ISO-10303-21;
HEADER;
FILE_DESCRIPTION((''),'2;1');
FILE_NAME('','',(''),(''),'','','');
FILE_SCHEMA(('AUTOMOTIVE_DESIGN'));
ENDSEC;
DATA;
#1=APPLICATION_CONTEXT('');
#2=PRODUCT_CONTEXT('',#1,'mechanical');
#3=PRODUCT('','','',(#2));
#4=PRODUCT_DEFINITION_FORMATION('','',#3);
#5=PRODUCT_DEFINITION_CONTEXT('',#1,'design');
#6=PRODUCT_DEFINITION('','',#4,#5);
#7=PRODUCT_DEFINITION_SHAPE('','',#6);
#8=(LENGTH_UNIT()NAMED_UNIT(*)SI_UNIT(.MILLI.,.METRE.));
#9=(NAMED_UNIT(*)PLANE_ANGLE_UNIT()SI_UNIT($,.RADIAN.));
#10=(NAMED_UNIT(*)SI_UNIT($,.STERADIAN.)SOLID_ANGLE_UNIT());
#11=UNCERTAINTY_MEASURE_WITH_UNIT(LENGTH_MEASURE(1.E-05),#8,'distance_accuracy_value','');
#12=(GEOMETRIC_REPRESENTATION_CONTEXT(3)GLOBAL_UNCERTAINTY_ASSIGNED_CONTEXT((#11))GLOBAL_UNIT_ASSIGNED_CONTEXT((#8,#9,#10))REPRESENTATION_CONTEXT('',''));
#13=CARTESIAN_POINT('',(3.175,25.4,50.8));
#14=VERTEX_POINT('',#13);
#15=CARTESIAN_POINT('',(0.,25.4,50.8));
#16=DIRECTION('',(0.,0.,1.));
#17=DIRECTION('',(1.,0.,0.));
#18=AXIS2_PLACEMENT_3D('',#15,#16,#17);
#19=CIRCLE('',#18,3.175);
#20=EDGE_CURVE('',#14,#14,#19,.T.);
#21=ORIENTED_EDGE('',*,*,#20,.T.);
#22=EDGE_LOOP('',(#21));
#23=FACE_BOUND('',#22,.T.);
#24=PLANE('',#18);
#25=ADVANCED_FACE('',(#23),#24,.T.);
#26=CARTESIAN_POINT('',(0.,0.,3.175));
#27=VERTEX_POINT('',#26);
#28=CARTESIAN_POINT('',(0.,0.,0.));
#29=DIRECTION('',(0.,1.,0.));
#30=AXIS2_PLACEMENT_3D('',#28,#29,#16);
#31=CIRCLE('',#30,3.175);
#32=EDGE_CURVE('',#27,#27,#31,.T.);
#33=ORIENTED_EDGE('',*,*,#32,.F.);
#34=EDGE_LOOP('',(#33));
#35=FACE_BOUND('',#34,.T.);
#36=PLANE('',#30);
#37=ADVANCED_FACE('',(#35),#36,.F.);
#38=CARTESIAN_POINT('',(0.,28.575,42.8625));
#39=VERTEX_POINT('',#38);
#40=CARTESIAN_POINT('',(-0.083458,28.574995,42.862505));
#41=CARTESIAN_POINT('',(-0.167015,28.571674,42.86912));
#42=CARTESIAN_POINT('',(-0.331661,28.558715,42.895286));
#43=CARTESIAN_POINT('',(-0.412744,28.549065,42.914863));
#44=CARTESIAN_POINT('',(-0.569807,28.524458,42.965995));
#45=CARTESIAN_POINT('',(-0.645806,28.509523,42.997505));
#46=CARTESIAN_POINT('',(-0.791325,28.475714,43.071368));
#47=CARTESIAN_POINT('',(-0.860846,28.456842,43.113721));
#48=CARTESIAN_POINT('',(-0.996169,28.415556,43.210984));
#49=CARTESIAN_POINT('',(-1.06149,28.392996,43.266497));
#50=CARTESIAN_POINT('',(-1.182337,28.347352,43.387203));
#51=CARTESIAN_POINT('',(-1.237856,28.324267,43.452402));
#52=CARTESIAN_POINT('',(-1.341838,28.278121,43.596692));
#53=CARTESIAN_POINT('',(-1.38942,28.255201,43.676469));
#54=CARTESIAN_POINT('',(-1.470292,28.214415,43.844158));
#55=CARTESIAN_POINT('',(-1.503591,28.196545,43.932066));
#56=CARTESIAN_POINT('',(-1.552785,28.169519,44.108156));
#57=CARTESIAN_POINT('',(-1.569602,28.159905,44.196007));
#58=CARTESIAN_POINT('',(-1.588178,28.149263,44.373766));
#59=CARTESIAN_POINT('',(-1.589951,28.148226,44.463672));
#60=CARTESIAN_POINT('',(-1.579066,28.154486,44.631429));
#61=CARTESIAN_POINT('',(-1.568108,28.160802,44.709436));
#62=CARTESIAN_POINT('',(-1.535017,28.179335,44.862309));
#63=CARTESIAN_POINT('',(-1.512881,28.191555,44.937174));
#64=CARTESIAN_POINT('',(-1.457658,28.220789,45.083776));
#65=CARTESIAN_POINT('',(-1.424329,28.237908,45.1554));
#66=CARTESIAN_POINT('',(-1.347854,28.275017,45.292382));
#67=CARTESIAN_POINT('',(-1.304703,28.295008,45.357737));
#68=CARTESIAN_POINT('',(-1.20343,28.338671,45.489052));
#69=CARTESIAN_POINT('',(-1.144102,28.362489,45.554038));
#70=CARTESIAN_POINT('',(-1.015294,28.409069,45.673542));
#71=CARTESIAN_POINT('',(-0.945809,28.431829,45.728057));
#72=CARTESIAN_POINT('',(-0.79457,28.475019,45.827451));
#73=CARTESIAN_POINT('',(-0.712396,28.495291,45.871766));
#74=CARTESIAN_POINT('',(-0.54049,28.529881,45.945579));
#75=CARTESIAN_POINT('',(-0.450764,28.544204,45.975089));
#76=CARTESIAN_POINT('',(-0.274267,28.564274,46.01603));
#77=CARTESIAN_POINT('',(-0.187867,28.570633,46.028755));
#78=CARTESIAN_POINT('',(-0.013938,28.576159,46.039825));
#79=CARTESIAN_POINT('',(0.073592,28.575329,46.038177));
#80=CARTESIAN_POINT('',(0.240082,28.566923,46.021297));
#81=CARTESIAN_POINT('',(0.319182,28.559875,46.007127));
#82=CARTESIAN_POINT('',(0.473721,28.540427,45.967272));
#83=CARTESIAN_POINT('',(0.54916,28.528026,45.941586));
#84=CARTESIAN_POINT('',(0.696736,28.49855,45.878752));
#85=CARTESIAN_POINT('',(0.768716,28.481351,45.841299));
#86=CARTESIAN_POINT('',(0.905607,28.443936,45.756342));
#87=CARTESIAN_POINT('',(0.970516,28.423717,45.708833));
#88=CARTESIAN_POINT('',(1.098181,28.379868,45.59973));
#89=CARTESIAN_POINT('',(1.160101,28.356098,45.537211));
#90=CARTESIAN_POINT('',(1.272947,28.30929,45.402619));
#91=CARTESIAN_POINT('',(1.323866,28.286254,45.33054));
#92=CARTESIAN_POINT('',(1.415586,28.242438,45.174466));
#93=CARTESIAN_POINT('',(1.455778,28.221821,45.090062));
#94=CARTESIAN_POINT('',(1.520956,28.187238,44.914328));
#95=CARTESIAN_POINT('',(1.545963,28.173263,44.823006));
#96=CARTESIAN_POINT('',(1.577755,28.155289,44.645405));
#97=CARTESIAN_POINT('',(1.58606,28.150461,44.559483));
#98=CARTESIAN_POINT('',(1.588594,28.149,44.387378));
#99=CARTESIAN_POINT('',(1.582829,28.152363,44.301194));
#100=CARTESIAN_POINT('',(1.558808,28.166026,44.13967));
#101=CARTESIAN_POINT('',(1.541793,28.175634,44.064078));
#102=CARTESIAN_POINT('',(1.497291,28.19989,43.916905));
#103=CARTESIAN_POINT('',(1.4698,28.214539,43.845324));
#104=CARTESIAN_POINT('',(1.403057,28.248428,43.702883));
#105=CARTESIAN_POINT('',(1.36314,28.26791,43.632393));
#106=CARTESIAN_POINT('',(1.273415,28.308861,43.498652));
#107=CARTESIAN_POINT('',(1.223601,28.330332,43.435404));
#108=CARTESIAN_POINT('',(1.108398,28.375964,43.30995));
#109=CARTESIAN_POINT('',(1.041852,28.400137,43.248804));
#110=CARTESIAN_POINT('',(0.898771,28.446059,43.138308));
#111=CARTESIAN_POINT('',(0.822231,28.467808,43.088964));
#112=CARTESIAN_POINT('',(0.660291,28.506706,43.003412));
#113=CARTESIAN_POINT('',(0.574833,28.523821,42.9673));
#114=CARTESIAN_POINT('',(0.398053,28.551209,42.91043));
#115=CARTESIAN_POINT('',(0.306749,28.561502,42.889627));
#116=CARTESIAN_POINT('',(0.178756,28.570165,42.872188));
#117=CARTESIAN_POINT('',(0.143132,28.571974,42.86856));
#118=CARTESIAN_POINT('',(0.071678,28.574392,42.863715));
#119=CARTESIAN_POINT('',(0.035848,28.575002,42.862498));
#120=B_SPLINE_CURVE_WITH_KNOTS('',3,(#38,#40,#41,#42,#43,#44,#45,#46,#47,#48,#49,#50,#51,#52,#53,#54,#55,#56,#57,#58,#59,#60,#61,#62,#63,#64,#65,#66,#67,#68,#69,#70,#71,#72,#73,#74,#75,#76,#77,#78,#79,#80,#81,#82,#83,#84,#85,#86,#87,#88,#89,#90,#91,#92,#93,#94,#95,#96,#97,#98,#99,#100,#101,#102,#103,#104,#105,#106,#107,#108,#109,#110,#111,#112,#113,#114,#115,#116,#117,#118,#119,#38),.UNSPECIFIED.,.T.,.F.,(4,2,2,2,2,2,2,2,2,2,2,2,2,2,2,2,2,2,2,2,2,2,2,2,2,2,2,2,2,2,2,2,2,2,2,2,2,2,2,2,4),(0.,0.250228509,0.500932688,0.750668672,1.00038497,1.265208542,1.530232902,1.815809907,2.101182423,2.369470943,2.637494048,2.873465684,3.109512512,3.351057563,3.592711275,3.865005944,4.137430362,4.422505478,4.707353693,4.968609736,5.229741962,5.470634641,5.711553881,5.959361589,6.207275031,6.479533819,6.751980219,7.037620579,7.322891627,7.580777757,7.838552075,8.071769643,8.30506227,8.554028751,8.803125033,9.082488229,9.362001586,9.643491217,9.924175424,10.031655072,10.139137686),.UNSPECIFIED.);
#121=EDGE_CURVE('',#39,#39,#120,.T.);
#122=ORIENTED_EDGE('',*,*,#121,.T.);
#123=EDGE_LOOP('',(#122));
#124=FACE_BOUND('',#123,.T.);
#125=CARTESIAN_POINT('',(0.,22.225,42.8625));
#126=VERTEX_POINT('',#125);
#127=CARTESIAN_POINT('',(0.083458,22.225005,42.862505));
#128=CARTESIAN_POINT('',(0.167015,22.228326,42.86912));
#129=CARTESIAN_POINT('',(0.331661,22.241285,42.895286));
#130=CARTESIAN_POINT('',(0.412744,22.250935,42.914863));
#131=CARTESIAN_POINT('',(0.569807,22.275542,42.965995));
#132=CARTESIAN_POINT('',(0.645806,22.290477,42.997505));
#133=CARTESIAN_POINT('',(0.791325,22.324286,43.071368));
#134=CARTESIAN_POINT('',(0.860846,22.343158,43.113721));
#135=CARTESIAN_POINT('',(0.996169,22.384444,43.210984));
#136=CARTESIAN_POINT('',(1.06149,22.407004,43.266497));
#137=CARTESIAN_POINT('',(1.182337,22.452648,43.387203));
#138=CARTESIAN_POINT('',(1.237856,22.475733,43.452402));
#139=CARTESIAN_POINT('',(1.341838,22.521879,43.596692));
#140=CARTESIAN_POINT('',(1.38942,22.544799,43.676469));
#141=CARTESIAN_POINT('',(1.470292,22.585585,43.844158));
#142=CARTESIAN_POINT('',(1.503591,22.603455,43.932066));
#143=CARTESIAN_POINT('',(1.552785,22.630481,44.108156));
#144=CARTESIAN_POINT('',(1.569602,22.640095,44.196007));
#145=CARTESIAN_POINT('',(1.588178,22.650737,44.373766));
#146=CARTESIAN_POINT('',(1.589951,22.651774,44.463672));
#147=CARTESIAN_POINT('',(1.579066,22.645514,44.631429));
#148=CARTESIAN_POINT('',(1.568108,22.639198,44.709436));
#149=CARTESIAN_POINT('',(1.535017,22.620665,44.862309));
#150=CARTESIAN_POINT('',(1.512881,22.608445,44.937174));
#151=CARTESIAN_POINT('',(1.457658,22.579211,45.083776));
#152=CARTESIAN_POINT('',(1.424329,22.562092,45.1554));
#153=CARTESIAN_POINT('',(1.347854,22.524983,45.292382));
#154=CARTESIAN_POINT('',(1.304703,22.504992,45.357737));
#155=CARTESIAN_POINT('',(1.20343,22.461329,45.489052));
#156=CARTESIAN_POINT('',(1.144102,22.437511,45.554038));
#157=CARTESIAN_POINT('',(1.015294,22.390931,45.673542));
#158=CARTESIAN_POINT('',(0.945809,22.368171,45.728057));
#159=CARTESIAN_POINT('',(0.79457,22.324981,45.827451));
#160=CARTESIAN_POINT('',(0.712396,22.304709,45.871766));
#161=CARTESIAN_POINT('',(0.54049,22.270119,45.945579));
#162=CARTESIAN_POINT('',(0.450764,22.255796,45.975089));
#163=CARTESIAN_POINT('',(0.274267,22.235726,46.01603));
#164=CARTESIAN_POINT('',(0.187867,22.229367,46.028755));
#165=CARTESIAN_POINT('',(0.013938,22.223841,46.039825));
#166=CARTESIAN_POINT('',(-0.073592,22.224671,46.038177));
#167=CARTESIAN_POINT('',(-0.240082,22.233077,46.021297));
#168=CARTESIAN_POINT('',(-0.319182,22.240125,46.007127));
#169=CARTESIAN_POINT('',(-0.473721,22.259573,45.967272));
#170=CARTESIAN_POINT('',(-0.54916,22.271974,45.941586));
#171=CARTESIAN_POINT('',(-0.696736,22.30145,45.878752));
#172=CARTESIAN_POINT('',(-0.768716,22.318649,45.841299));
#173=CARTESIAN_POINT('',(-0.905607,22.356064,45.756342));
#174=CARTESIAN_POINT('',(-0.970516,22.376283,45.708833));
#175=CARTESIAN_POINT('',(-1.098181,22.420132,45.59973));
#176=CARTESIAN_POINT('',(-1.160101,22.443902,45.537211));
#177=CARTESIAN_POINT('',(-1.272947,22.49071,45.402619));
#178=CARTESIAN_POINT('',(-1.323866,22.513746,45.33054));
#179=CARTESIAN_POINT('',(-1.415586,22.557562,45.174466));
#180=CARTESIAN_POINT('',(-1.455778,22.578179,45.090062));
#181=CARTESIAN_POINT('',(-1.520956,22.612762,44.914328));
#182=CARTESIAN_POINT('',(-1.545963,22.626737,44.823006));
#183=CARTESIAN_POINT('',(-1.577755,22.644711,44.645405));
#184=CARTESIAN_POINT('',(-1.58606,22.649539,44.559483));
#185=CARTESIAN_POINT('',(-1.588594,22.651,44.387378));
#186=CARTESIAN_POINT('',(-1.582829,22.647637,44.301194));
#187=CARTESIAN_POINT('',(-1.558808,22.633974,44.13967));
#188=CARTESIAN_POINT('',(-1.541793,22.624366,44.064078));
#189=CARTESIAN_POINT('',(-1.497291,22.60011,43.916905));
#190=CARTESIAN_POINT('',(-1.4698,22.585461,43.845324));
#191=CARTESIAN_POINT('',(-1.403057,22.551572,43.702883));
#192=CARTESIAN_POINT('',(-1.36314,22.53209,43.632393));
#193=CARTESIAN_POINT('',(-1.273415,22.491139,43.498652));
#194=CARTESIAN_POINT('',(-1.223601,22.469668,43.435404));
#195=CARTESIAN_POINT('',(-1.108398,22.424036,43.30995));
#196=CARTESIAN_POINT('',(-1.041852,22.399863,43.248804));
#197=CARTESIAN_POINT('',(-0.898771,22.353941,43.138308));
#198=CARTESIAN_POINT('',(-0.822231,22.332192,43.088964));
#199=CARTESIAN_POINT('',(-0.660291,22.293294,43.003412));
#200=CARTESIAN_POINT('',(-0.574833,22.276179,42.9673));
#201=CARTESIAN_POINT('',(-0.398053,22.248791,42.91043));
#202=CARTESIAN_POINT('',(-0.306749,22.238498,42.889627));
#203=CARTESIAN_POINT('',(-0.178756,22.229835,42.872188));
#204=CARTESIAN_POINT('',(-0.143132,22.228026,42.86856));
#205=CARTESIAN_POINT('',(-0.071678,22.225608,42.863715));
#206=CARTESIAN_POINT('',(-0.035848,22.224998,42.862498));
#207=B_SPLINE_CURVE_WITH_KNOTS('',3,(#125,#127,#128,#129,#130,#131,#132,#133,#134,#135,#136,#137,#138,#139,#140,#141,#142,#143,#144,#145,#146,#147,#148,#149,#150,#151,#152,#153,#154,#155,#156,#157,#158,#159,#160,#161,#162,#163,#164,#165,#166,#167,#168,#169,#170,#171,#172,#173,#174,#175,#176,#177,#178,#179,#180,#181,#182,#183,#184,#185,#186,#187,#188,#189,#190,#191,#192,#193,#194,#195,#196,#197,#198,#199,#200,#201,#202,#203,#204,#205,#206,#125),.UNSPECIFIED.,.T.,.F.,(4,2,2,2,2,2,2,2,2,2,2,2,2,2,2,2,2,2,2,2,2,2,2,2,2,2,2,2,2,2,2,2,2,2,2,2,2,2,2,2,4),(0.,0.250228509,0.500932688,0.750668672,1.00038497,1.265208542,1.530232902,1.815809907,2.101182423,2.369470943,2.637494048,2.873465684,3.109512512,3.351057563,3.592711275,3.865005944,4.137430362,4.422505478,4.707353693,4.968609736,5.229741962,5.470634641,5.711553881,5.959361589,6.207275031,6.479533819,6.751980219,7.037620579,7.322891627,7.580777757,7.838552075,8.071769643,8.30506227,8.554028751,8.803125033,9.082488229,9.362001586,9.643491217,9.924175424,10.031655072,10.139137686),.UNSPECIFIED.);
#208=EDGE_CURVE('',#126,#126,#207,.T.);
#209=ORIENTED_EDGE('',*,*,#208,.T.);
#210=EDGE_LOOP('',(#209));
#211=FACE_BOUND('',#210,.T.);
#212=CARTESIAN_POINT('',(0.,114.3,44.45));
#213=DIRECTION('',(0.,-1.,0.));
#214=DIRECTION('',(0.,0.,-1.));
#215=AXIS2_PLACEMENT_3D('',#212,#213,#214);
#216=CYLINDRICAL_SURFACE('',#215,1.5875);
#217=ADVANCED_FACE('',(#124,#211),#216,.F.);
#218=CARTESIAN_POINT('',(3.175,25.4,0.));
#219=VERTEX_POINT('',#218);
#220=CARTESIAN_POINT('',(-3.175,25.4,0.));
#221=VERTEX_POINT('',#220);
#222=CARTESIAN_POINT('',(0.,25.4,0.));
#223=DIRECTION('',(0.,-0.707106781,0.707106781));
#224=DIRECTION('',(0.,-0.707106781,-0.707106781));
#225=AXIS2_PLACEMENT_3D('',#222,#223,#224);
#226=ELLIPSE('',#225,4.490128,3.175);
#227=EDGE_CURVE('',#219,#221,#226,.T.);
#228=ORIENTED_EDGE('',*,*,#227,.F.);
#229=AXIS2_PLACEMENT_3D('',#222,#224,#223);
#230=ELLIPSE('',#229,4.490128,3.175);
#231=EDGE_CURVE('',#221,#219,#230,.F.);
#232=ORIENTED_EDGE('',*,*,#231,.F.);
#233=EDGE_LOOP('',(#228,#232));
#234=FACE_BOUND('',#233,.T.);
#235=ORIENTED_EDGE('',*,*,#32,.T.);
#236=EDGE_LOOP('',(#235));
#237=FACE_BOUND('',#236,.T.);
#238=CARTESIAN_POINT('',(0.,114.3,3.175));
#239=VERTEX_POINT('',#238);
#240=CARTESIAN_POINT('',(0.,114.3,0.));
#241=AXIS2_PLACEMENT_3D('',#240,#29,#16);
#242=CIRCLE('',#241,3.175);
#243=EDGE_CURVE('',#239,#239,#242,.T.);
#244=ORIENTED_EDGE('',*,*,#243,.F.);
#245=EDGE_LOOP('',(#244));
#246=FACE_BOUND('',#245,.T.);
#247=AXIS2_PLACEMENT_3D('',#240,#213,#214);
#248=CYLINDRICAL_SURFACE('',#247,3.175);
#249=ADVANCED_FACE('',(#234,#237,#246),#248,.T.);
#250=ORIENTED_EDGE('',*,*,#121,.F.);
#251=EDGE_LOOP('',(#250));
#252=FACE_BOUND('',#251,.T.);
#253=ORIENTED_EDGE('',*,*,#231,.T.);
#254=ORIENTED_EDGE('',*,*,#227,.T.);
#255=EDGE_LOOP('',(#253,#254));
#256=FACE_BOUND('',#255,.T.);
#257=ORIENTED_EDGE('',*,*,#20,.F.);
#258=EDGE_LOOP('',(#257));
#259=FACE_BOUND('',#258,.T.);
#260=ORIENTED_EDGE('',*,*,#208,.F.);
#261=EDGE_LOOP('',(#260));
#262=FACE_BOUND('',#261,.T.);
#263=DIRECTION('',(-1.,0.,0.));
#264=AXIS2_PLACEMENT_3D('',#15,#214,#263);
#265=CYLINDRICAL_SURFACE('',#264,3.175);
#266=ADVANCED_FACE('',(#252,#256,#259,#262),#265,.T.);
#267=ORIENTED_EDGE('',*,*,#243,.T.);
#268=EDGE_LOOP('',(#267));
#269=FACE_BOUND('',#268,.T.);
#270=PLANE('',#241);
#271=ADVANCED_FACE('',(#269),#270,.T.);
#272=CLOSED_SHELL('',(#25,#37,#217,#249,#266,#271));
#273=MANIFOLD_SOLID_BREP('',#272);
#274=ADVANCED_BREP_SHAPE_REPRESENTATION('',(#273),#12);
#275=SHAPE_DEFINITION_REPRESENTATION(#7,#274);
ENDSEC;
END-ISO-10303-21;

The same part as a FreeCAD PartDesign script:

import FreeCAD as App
import Part
import Sketcher
Q = App.Units.Quantity

doc = App.newDocument("Part")
params = doc.addObject("Spreadsheet::Sheet", "Params")
for row, (alias, value) in enumerate([
    ("sketch1_diameter", "0.25 in"),
    ("pad1_length", "4.5 in"),
    ("sketch2_diameter", "0.25 in"),
    ("pad2_length", "2 in"),
    ("sketch3_diameter", "0.125 in"),
], start=1):
    params.set(f"A{row}", alias)
    params.set(f"B{row}", "=" + value)
    params.setAlias(f"B{row}", alias)

body = doc.addObject("PartDesign::Body", "Body")

sketch1 = body.newObject("Sketcher::SketchObject", "Sketch")
sketch1.AttachmentSupport = (doc.getObject("XZ_Plane"), [""])
sketch1.MapMode = "FlatFace"
sketch1.addGeometry(Part.Circle(App.Vector(0, 0, 0), App.Vector(0, 0, 1), 3.2), False)
sketch1.addConstraint([
    Sketcher.Constraint("Coincident", 0, 3, -1, 1),
    Sketcher.Constraint("Diameter", 0, Q("0.25 in")),
])
sketch1.setExpression("Constraints[1]", "Params.sketch1_diameter")
pad1 = body.newObject("PartDesign::Pad", "Pad")
pad1.Profile = sketch1
pad1.setExpression("Length", "Params.pad1_length")
pad1.Reversed = True

sketch2 = body.newObject("Sketcher::SketchObject", "Sketch001")
sketch2.AttachmentSupport = (doc.getObject("XY_Plane"), [""])
sketch2.MapMode = "FlatFace"
sketch2.addGeometry(Part.Circle(App.Vector(0, 25.4, 0), App.Vector(0, 0, 1), 3.2), False)
sketch2.addConstraint([
    Sketcher.Constraint("PointOnObject", 0, 3, -2),
    Sketcher.Constraint("Diameter", 0, Q("0.25 in")),
    Sketcher.Constraint("DistanceY", -1, 1, 0, 3, Q("1 in")),
])
sketch2.setExpression("Constraints[1]", "Params.sketch2_diameter")
pad2 = body.newObject("PartDesign::Pad", "Pad001")
pad2.Profile = sketch2
pad2.setExpression("Length", "Params.pad2_length")

sketch3 = body.newObject("Sketcher::SketchObject", "Sketch002")
sketch3.AttachmentSupport = (doc.getObject("XZ_Plane"), [""])
sketch3.MapMode = "FlatFace"
sketch3.addGeometry(Part.Circle(App.Vector(0, 44.5, 0), App.Vector(0, 0, 1), 1.6), False)
sketch3.addConstraint([
    Sketcher.Constraint("PointOnObject", 0, 3, -2),
    Sketcher.Constraint("Diameter", 0, Q("0.125 in")),
    Sketcher.Constraint("DistanceY", -1, 1, 0, 3, Q("1.75 in")),
])
sketch3.setExpression("Constraints[1]", "Params.sketch3_diameter")
pocket1 = body.newObject("PartDesign::Pocket", "Pocket")
pocket1.Profile = sketch3
pocket1.Type = "ThroughAll"

doc.recompute()
